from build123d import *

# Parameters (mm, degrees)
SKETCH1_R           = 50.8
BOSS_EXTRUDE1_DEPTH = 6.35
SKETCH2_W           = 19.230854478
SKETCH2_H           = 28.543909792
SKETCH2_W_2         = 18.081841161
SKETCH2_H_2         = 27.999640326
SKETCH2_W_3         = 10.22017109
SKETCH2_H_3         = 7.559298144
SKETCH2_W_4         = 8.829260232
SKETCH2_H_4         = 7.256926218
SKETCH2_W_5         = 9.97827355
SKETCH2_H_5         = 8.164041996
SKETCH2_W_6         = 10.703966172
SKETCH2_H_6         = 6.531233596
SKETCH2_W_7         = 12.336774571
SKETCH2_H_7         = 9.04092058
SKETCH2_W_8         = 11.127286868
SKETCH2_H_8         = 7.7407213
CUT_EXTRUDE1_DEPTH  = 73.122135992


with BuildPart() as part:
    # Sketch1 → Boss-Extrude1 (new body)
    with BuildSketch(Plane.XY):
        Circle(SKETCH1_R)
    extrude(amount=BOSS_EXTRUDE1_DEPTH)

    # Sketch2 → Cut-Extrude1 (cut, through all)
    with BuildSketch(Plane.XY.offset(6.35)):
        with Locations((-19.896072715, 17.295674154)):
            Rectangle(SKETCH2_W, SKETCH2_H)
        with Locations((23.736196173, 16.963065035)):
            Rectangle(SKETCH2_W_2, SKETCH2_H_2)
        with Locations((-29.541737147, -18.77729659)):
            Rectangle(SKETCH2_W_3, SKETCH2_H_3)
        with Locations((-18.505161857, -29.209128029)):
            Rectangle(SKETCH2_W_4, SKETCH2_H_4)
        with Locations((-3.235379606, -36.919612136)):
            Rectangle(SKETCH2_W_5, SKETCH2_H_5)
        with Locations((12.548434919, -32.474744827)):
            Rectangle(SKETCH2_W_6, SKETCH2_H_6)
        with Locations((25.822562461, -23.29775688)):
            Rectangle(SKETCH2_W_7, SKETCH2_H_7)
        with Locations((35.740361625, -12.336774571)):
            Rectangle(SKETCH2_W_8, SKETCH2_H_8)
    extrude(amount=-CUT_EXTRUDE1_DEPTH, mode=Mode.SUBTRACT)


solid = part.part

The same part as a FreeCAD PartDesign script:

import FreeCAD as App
import Part
import Sketcher

V = App.Vector
Q = App.Units.Quantity


def add_polygon(sketch, points):
    """Adds a closed chain of lines whose ends are joined by coincident constraints."""
    first, n = sketch.GeometryCount, len(points)
    for a, b in zip(points, points[1:] + points[:1]):
        sketch.addGeometry(Part.LineSegment(App.Vector(*a, 0), App.Vector(*b, 0)), False)
    for i in range(n):
        sketch.addConstraint(Sketcher.Constraint("Coincident", first + i, 2, first + (i + 1) % n, 1))

doc = App.newDocument("Part")
body = doc.addObject("PartDesign::Body", "Body")

sketch1 = body.newObject("Sketcher::SketchObject", "Sketch")
sketch1.AttachmentSupport = (doc.getObject("XY_Plane"), [""])
sketch1.MapMode = "FlatFace"
sketch1.addGeometry(Part.Circle(V(0, 0, 0), V(0, 0, 1), 51), False)
sketch1.addConstraint(Sketcher.Constraint("Coincident", 0, 3, -1, 1))
sketch1.addConstraint(Sketcher.Constraint("Diameter", 0, Q("4 in")))
pad1 = body.newObject("PartDesign::Pad", "Pad")
pad1.Profile = sketch1
pad1.Length = Q("0.25 in")

sketch2 = body.newObject("Sketcher::SketchObject", "Sketch001")
sketch2.AttachmentSupport = (doc.getObject("XY_Plane"), [""])
sketch2.MapMode = "FlatFace"
sketch2.AttachmentOffset = App.Placement(V(0, 0, 0.25 * 25.4), App.Rotation())
add_polygon(sketch2, [(-30, 32), (-30, 3), (-10, 3), (-10, 32)])
add_polygon(sketch2, [(15, 31), (15, 3), (33, 3), (33, 31)])
add_polygon(sketch2, [(-35, -15), (-35, -23), (-24, -23), (-24, -15)])
add_polygon(sketch2, [(-23, -26), (-23, -33), (-14, -33), (-14, -26)])
add_polygon(sketch2, [(-8, -33), (-8, -41), (2, -41), (2, -33)])
add_polygon(sketch2, [(7, -29), (7, -36), (18, -36), (18, -29)])
add_polygon(sketch2, [(20, -19), (20, -28), (32, -28), (32, -19)])
add_polygon(sketch2, [(30, -8), (30, -16), (41, -16), (41, -8)])
sketch2.addConstraint(Sketcher.Constraint("Vertical", 0))
sketch2.addConstraint(Sketcher.Constraint("Horizontal", 1))
sketch2.addConstraint(Sketcher.Constraint("Vertical", 2))
sketch2.addConstraint(Sketcher.Constraint("Horizontal", 3))
sketch2.addConstraint(Sketcher.Constraint("Vertical", 4))
sketch2.addConstraint(Sketcher.Constraint("Horizontal", 5))
sketch2.addConstraint(Sketcher.Constraint("Vertical", 6))
sketch2.addConstraint(Sketcher.Constraint("Horizontal", 7))
sketch2.addConstraint(Sketcher.Constraint("Vertical", 8))
sketch2.addConstraint(Sketcher.Constraint("Horizontal", 9))
sketch2.addConstraint(Sketcher.Constraint("Vertical", 10))
sketch2.addConstraint(Sketcher.Constraint("Horizontal", 11))
sketch2.addConstraint(Sketcher.Constraint("Vertical", 12))
sketch2.addConstraint(Sketcher.Constraint("Horizontal", 13))
sketch2.addConstraint(Sketcher.Constraint("Vertical", 14))
sketch2.addConstraint(Sketcher.Constraint("Horizontal", 15))
sketch2.addConstraint(Sketcher.Constraint("Vertical", 16))
sketch2.addConstraint(Sketcher.Constraint("Horizontal", 17))
sketch2.addConstraint(Sketcher.Constraint("Vertical", 18))
sketch2.addConstraint(Sketcher.Constraint("Horizontal", 19))
sketch2.addConstraint(Sketcher.Constraint("Vertical", 20))
sketch2.addConstraint(Sketcher.Constraint("Horizontal", 21))
sketch2.addConstraint(Sketcher.Constraint("Vertical", 22))
sketch2.addConstraint(Sketcher.Constraint("Horizontal", 23))
sketch2.addConstraint(Sketcher.Constraint("Vertical", 24))
sketch2.addConstraint(Sketcher.Constraint("Horizontal", 25))
sketch2.addConstraint(Sketcher.Constraint("Vertical", 26))
sketch2.addConstraint(Sketcher.Constraint("Horizontal", 27))
sketch2.addConstraint(Sketcher.Constraint("Vertical", 28))
sketch2.addConstraint(Sketcher.Constraint("Horizontal", 29))
sketch2.addConstraint(Sketcher.Constraint("Vertical", 30))
sketch2.addConstraint(Sketcher.Constraint("Horizontal", 31))
sketch2.addConstraint(Sketcher.Constraint("Horizontal", 13, 2, 18, 2))
sketch2.addConstraint(Sketcher.Constraint("DistanceY", 8, 2, 8, 1, Q("7.559298 mm")))
sketch2.addConstraint(Sketcher.Constraint("DistanceX", 16, 2, -1, 1, Q("0.3237999 in")))
sketch2.addConstraint(Sketcher.Constraint("DistanceX", 5, 1, 5, 2, Q("18.081841 mm")))
sketch2.addConstraint(Sketcher.Constraint("DistanceX", 9, 1, 9, 2, Q("10.220171 mm")))
sketch2.addConstraint(Sketcher.Constraint("DistanceX", 13, 1, 13, 2, Q("8.82926 mm")))
sketch2.addConstraint(Sketcher.Constraint("DistanceY", 0, 2, 0, 1, Q("28.54391 mm")))
sketch2.addConstraint(Sketcher.Constraint("DistanceY", 4, 2, 4, 1, Q("27.99964 mm")))
sketch2.addConstraint(Sketcher.Constraint("DistanceY", 16, 2, 16, 1, Q("8.164042 mm")))
sketch2.addConstraint(Sketcher.Constraint("DistanceY", 24, 2, 24, 1, Q("9.040921 mm")))
sketch2.addConstraint(Sketcher.Constraint("DistanceY", 28, 2, 28, 1, Q("7.740721 mm")))
sketch2.addConstraint(Sketcher.Constraint("DistanceX", 0, 2, -1, 1, Q("29.5115 mm")))
sketch2.addConstraint(Sketcher.Constraint("DistanceX", 8, 2, 4, 2, Q("49.347098 mm")))
sketch2.addConstraint(Sketcher.Constraint("DistanceX", 22, 2, 28, 2, Q("12.2763 mm")))
sketch2.addConstraint(Sketcher.Constraint("DistanceX", 31, 2, 5, 2, Q("2.600399 mm")))
sketch2.addConstraint(Sketcher.Constraint("DistanceX", 1, 1, 1, 2, Q("19.230854 mm")))
sketch2.addConstraint(Sketcher.Constraint("DistanceX", 17, 1, 17, 2, Q("9.978274 mm")))
sketch2.addConstraint(Sketcher.Constraint("DistanceX", 21, 1, 21, 2, Q("10.703966 mm")))
sketch2.addConstraint(Sketcher.Constraint("DistanceX", 25, 1, 25, 2, Q("12.336775 mm")))
sketch2.addConstraint(Sketcher.Constraint("DistanceX", 29, 1, 29, 2, Q("11.127287 mm")))
sketch2.addConstraint(Sketcher.Constraint("DistanceY", 12, 2, 12, 1, Q("7.256926 mm")))
sketch2.addConstraint(Sketcher.Constraint("DistanceY", 20, 2, 20, 1, Q("6.531234 mm")))
sketch2.addConstraint(Sketcher.Constraint("DistanceY", -1, 1, 0, 2, Q("3.023719 mm")))
sketch2.addConstraint(Sketcher.Constraint("DistanceX", 9, 2, -1, 1, Q("24.431652 mm")))
sketch2.addConstraint(Sketcher.Constraint("DistanceX", 12, 2, -1, 1, Q("22.919792 mm")))
sketch2.addConstraint(Sketcher.Constraint("DistanceY", 12, 2, -1, 1, Q("32.837591 mm")))
sketch2.addConstraint(Sketcher.Constraint("DistanceY", 20, 2, -1, 1, Q("35.740362 mm")))
sketch2.addConstraint(Sketcher.Constraint("DistanceX", -1, 1, 25, 2, Q("31.99095 mm")))
sketch2.addConstraint(Sketcher.Constraint("DistanceY", 8, 2, 4, 2, Q("25.520191 mm")))
sketch2.addConstraint(Sketcher.Constraint("DistanceY", 14, 2, 9, 2, Q("3.023719 mm")))
sketch2.addConstraint(Sketcher.Constraint("DistanceY", 22, 2, 24, 2, Q("1.390911 mm")))
sketch2.addConstraint(Sketcher.Constraint("DistanceY", 26, 2, 28, 2, Q("2.570161 mm")))
pocket1 = body.newObject("PartDesign::Pocket", "Pocket")
pocket1.Profile = sketch2
pocket1.Type = "ThroughAll"

doc.recompute()
